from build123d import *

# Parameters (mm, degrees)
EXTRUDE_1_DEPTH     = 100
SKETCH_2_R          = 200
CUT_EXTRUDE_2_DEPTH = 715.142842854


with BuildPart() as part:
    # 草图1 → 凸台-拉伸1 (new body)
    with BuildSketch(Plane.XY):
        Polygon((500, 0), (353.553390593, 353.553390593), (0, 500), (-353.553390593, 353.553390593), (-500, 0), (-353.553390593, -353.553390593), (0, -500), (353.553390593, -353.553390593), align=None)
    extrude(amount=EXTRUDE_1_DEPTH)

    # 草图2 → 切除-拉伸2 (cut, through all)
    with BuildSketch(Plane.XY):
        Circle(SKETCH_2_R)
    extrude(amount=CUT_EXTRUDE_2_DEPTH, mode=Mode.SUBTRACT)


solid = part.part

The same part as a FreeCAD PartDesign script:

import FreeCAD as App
import Part
import Sketcher
from FreeCAD import Vector
Q = App.Units.Quantity


def add_polygon(sketch, points):
    """Adds a closed chain of lines whose ends are joined by coincident constraints."""
    first, n = sketch.GeometryCount, len(points)
    for a, b in zip(points, points[1:] + points[:1]):
        sketch.addGeometry(Part.LineSegment(App.Vector(*a, 0), App.Vector(*b, 0)), False)
    for i in range(n):
        sketch.addConstraint(Sketcher.Constraint("Coincident", first + i, 2, first + (i + 1) % n, 1))

doc = App.newDocument("Part")
body = doc.addObject("PartDesign::Body", "Body")

# Sketch on XY plane
sketch1 = body.newObject("Sketcher::SketchObject", "Sketch")
sketch1.AttachmentSupport = (doc.getObject("XY_Plane"), [""])
sketch1.MapMode = "FlatFace"
add_polygon(sketch1, [(500, 0), (353.553391, 353.553391), (0, 500), (-353.553391, 353.553391), (-500, 0), (-353.553391, -353.553391), (0, -500), (353.553391, -353.553391)])  # lines 0-7
sketch1.addConstraint(Sketcher.Constraint("Symmetric", 0, 2, 4, 2, -1, 1))
sketch1.addConstraint(Sketcher.Constraint("Symmetric", 1, 2, 5, 2, -1, 1))
sketch1.addConstraint(Sketcher.Constraint("Symmetric", 2, 2, 6, 2, -1, 1))
sketch1.addConstraint(Sketcher.Constraint("Symmetric", 3, 2, 7, 2, -1, 1))
sketch1.addConstraint(Sketcher.Constraint("Symmetric", 0, 2, 2, 2, -2))
sketch1.addConstraint(Sketcher.Constraint("PointOnObject", 1, 2, -2))
sketch1.addConstraint(Sketcher.Constraint("PointOnObject", 3, 2, -1))
sketch1.addConstraint(Sketcher.Constraint("Perpendicular", 0, 2))
sketch1.addConstraint(Sketcher.Constraint("Equal", 0, 1))
sketch1.addConstraint(Sketcher.Constraint("DistanceY", -1, 1, 1, 2, Q("500 mm")))
sketch1.addConstraint(Sketcher.Constraint("Angle", 0, Q("112.5 deg")))
pad1 = body.newObject("PartDesign::Pad", "Pad")
pad1.Profile = sketch1
pad1.Length = 100

# Sketch on XY plane
sketch2 = body.newObject("Sketcher::SketchObject", "Sketch001")
sketch2.AttachmentSupport = (doc.getObject("XY_Plane"), [""])
sketch2.MapMode = "FlatFace"
sketch2.addGeometry(Part.Circle(Vector(0, 0, 0), Vector(0, 0, 1), 200), False)
sketch2.addConstraint(Sketcher.Constraint("Coincident", 0, 3, -1, 1))
sketch2.addConstraint(Sketcher.Constraint("Diameter", 0, Q("400 mm")))
pocket1 = body.newObject("PartDesign::Pocket", "Pocket")
pocket1.Profile = sketch2
pocket1.Type = "ThroughAll"
pocket1.Reversed = True

doc.recompute()
